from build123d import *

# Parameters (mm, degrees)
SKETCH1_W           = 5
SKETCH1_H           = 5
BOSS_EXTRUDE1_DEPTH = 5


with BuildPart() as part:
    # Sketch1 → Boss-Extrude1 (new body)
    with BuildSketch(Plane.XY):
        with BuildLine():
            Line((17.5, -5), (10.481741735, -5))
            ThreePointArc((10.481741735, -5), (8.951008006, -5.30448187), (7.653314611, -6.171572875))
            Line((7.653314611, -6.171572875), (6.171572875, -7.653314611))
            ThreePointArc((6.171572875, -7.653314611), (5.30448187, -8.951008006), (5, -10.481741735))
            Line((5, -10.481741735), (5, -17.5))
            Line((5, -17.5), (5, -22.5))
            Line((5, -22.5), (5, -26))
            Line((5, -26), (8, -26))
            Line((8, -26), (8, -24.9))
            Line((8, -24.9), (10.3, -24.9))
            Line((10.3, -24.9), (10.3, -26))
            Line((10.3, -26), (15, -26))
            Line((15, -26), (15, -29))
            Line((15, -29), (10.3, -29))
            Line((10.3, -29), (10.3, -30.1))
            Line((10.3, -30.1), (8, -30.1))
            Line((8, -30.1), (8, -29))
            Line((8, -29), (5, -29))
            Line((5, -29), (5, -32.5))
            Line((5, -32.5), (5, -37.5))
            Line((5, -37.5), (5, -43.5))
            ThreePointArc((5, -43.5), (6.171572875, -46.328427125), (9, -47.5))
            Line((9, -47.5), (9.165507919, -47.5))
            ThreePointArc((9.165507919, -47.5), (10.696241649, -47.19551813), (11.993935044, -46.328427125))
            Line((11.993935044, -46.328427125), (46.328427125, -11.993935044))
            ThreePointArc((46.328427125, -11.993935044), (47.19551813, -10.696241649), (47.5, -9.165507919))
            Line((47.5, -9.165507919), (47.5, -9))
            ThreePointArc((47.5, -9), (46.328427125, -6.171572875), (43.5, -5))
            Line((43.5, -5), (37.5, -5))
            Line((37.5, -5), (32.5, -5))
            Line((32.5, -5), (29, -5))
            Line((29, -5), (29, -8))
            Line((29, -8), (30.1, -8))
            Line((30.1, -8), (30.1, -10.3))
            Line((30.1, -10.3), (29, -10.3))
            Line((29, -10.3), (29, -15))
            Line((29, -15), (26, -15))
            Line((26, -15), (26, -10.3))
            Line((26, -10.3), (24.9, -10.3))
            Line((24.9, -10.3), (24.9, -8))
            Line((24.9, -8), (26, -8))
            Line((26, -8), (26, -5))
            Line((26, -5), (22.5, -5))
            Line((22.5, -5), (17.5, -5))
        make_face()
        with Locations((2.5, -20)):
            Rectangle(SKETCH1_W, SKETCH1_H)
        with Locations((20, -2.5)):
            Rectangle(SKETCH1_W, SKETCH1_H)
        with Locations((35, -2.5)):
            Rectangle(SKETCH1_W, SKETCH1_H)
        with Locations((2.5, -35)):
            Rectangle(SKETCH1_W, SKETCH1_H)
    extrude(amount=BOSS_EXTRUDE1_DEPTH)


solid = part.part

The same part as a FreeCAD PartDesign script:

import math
import FreeCAD as App
import Part
import Sketcher
from FreeCAD import Vector

doc = App.newDocument("Part")
body = doc.addObject("PartDesign::Body", "Body")

# Sketch on XY plane
sketch1 = doc.addObject("Sketcher::SketchObject", "Sketch")
body.addObject(sketch1)
sketch1.AttachmentSupport = (doc.XY_Plane, [""])
sketch1.MapMode = "FlatFace"
sketch1.addGeometry(Part.ArcOfCircle(Part.Circle(Vector(10.481742, -9, 0), Vector(0, 0, 1), 4), math.radians(90), math.radians(135)), False)
sketch1.addGeometry(Part.LineSegment(Vector(7.653315, -6.171573, 0), Vector(6.171573, -7.653315, 0)), False)
sketch1.addGeometry(Part.ArcOfCircle(Part.Circle(Vector(9, -10.481742, 0), Vector(0, 0, 1), 4), math.radians(135), math.radians(180)), False)
sketch1.addGeometry(Part.LineSegment(Vector(5, -10.481742, 0), Vector(5, -17.5, 0)), False)
sketch1.addGeometry(Part.LineSegment(Vector(5, -17.5, 0), Vector(0, -17.5, 0)), False)
sketch1.addGeometry(Part.LineSegment(Vector(0, -17.5, 0), Vector(0, -22.5, 0)), False)
sketch1.addGeometry(Part.LineSegment(Vector(0, -22.5, 0), Vector(5, -22.5, 0)), False)
sketch1.addGeometry(Part.LineSegment(Vector(5, -22.5, 0), Vector(5, -26, 0)), False)
sketch1.addGeometry(Part.LineSegment(Vector(5, -26, 0), Vector(8, -26, 0)), False)
sketch1.addGeometry(Part.LineSegment(Vector(8, -26, 0), Vector(8, -24.9, 0)), False)
sketch1.addGeometry(Part.LineSegment(Vector(8, -24.9, 0), Vector(10.3, -24.9, 0)), False)
sketch1.addGeometry(Part.LineSegment(Vector(10.3, -24.9, 0), Vector(10.3, -26, 0)), False)
sketch1.addGeometry(Part.LineSegment(Vector(10.3, -26, 0), Vector(15, -26, 0)), False)
sketch1.addGeometry(Part.LineSegment(Vector(15, -26, 0), Vector(15, -29, 0)), False)
sketch1.addGeometry(Part.LineSegment(Vector(15, -29, 0), Vector(10.3, -29, 0)), False)
sketch1.addGeometry(Part.LineSegment(Vector(10.3, -29, 0), Vector(10.3, -30.1, 0)), False)
sketch1.addGeometry(Part.LineSegment(Vector(10.3, -30.1, 0), Vector(8, -30.1, 0)), False)
sketch1.addGeometry(Part.LineSegment(Vector(8, -30.1, 0), Vector(8, -29, 0)), False)
sketch1.addGeometry(Part.LineSegment(Vector(8, -29, 0), Vector(5, -29, 0)), False)
sketch1.addGeometry(Part.LineSegment(Vector(5, -29, 0), Vector(5, -32.5, 0)), False)
sketch1.addGeometry(Part.LineSegment(Vector(5, -32.5, 0), Vector(0, -32.5, 0)), False)
sketch1.addGeometry(Part.LineSegment(Vector(0, -32.5, 0), Vector(0, -37.5, 0)), False)
sketch1.addGeometry(Part.LineSegment(Vector(0, -37.5, 0), Vector(5, -37.5, 0)), False)
sketch1.addGeometry(Part.LineSegment(Vector(5, -37.5, 0), Vector(5, -43.5, 0)), False)
sketch1.addGeometry(Part.ArcOfCircle(Part.Circle(Vector(9, -43.5, 0), Vector(0, 0, 1), 4), math.radians(180), math.radians(270)), False)
sketch1.addGeometry(Part.LineSegment(Vector(9, -47.5, 0), Vector(9.165508, -47.5, 0)), False)
sketch1.addGeometry(Part.ArcOfCircle(Part.Circle(Vector(9.165508, -43.5, 0), Vector(0, 0, 1), 4), math.radians(-90), math.radians(-45)), False)
sketch1.addGeometry(Part.LineSegment(Vector(11.993935, -46.328427, 0), Vector(46.328427, -11.993935, 0)), False)
sketch1.addGeometry(Part.ArcOfCircle(Part.Circle(Vector(43.5, -9.165508, 0), Vector(0, 0, 1), 4), math.radians(-45), math.radians(0)), False)
sketch1.addGeometry(Part.LineSegment(Vector(47.5, -9.165508, 0), Vector(47.5, -9, 0)), False)
sketch1.addGeometry(Part.ArcOfCircle(Part.Circle(Vector(43.5, -9, 0), Vector(0, 0, 1), 4), math.radians(0), math.radians(90)), False)
sketch1.addGeometry(Part.LineSegment(Vector(43.5, -5, 0), Vector(37.5, -5, 0)), False)
sketch1.addGeometry(Part.LineSegment(Vector(37.5, -5, 0), Vector(37.5, 0, 0)), False)
sketch1.addGeometry(Part.LineSegment(Vector(37.5, 0, 0), Vector(32.5, 0, 0)), False)
sketch1.addGeometry(Part.LineSegment(Vector(32.5, 0, 0), Vector(32.5, -5, 0)), False)
sketch1.addGeometry(Part.LineSegment(Vector(32.5, -5, 0), Vector(29, -5, 0)), False)
sketch1.addGeometry(Part.LineSegment(Vector(29, -5, 0), Vector(29, -8, 0)), False)
sketch1.addGeometry(Part.LineSegment(Vector(29, -8, 0), Vector(30.1, -8, 0)), False)
sketch1.addGeometry(Part.LineSegment(Vector(30.1, -8, 0), Vector(30.1, -10.3, 0)), False)
sketch1.addGeometry(Part.LineSegment(Vector(30.1, -10.3, 0), Vector(29, -10.3, 0)), False)
sketch1.addGeometry(Part.LineSegment(Vector(29, -10.3, 0), Vector(29, -15, 0)), False)
sketch1.addGeometry(Part.LineSegment(Vector(29, -15, 0), Vector(26, -15, 0)), False)
sketch1.addGeometry(Part.LineSegment(Vector(26, -15, 0), Vector(26, -10.3, 0)), False)
sketch1.addGeometry(Part.LineSegment(Vector(26, -10.3, 0), Vector(24.9, -10.3, 0)), False)
sketch1.addGeometry(Part.LineSegment(Vector(24.9, -10.3, 0), Vector(24.9, -8, 0)), False)
sketch1.addGeometry(Part.LineSegment(Vector(24.9, -8, 0), Vector(26, -8, 0)), False)
sketch1.addGeometry(Part.LineSegment(Vector(26, -8, 0), Vector(26, -5, 0)), False)
sketch1.addGeometry(Part.LineSegment(Vector(26, -5, 0), Vector(22.5, -5, 0)), False)
sketch1.addGeometry(Part.LineSegment(Vector(22.5, -5, 0), Vector(22.5, 0, 0)), False)
sketch1.addGeometry(Part.LineSegment(Vector(22.5, 0, 0), Vector(17.5, 0, 0)), False)
sketch1.addGeometry(Part.LineSegment(Vector(17.5, 0, 0), Vector(17.5, -5, 0)), False)
sketch1.addGeometry(Part.LineSegment(Vector(17.5, -5, 0), Vector(10.481742, -5, 0)), False)
sketch1.addConstraint(Sketcher.Constraint("Tangent", 0, 2, 1, 1))
sketch1.addConstraint(Sketcher.Constraint("Tangent", 1, 2, 2, 1))
sketch1.addConstraint(Sketcher.Constraint("Tangent", 2, 2, 3, 1))
sketch1.addConstraint(Sketcher.Constraint("Coincident", 3, 2, 4, 1))
sketch1.addConstraint(Sketcher.Constraint("Coincident", 4, 2, 5, 1))
sketch1.addConstraint(Sketcher.Constraint("Coincident", 5, 2, 6, 1))
sketch1.addConstraint(Sketcher.Constraint("Coincident", 6, 2, 7, 1))
sketch1.addConstraint(Sketcher.Constraint("Coincident", 7, 2, 8, 1))
sketch1.addConstraint(Sketcher.Constraint("Coincident", 8, 2, 9, 1))
sketch1.addConstraint(Sketcher.Constraint("Coincident", 9, 2, 10, 1))
sketch1.addConstraint(Sketcher.Constraint("Coincident", 10, 2, 11, 1))
sketch1.addConstraint(Sketcher.Constraint("Coincident", 11, 2, 12, 1))
sketch1.addConstraint(Sketcher.Constraint("Coincident", 12, 2, 13, 1))
sketch1.addConstraint(Sketcher.Constraint("Coincident", 13, 2, 14, 1))
sketch1.addConstraint(Sketcher.Constraint("Coincident", 14, 2, 15, 1))
sketch1.addConstraint(Sketcher.Constraint("Coincident", 15, 2, 16, 1))
sketch1.addConstraint(Sketcher.Constraint("Coincident", 16, 2, 17, 1))
sketch1.addConstraint(Sketcher.Constraint("Coincident", 17, 2, 18, 1))
sketch1.addConstraint(Sketcher.Constraint("Coincident", 18, 2, 19, 1))
sketch1.addConstraint(Sketcher.Constraint("Coincident", 19, 2, 20, 1))
sketch1.addConstraint(Sketcher.Constraint("Coincident", 20, 2, 21, 1))
sketch1.addConstraint(Sketcher.Constraint("Coincident", 21, 2, 22, 1))
sketch1.addConstraint(Sketcher.Constraint("Coincident", 22, 2, 23, 1))
sketch1.addConstraint(Sketcher.Constraint("Tangent", 23, 2, 24, 1))
sketch1.addConstraint(Sketcher.Constraint("Tangent", 24, 2, 25, 1))
sketch1.addConstraint(Sketcher.Constraint("Tangent", 25, 2, 26, 1))
sketch1.addConstraint(Sketcher.Constraint("Tangent", 26, 2, 27, 1))
sketch1.addConstraint(Sketcher.Constraint("Tangent", 27, 2, 28, 1))
sketch1.addConstraint(Sketcher.Constraint("Tangent", 28, 2, 29, 1))
sketch1.addConstraint(Sketcher.Constraint("Tangent", 29, 2, 30, 1))
sketch1.addConstraint(Sketcher.Constraint("Tangent", 30, 2, 31, 1))
sketch1.addConstraint(Sketcher.Constraint("Coincident", 31, 2, 32, 1))
sketch1.addConstraint(Sketcher.Constraint("Coincident", 32, 2, 33, 1))
sketch1.addConstraint(Sketcher.Constraint("Coincident", 33, 2, 34, 1))
sketch1.addConstraint(Sketcher.Constraint("Coincident", 34, 2, 35, 1))
sketch1.addConstraint(Sketcher.Constraint("Coincident", 35, 2, 36, 1))
sketch1.addConstraint(Sketcher.Constraint("Coincident", 36, 2, 37, 1))
sketch1.addConstraint(Sketcher.Constraint("Coincident", 37, 2, 38, 1))
sketch1.addConstraint(Sketcher.Constraint("Coincident", 38, 2, 39, 1))
sketch1.addConstraint(Sketcher.Constraint("Coincident", 39, 2, 40, 1))
sketch1.addConstraint(Sketcher.Constraint("Coincident", 40, 2, 41, 1))
sketch1.addConstraint(Sketcher.Constraint("Coincident", 41, 2, 42, 1))
sketch1.addConstraint(Sketcher.Constraint("Coincident", 42, 2, 43, 1))
sketch1.addConstraint(Sketcher.Constraint("Coincident", 43, 2, 44, 1))
sketch1.addConstraint(Sketcher.Constraint("Coincident", 44, 2, 45, 1))
sketch1.addConstraint(Sketcher.Constraint("Coincident", 45, 2, 46, 1))
sketch1.addConstraint(Sketcher.Constraint("Coincident", 46, 2, 47, 1))
sketch1.addConstraint(Sketcher.Constraint("Coincident", 47, 2, 48, 1))
sketch1.addConstraint(Sketcher.Constraint("Coincident", 48, 2, 49, 1))
sketch1.addConstraint(Sketcher.Constraint("Coincident", 49, 2, 50, 1))
sketch1.addConstraint(Sketcher.Constraint("Coincident", 50, 2, 51, 1))
sketch1.addConstraint(Sketcher.Constraint("Tangent", 51, 2, 0, 1))
sketch1.addConstraint(Sketcher.Constraint("Vertical", 3))
sketch1.addConstraint(Sketcher.Constraint("Horizontal", 4))
sketch1.addConstraint(Sketcher.Constraint("Vertical", 5))
sketch1.addConstraint(Sketcher.Constraint("Horizontal", 6))
sketch1.addConstraint(Sketcher.Constraint("Vertical", 7))
sketch1.addConstraint(Sketcher.Constraint("Horizontal", 8))
sketch1.addConstraint(Sketcher.Constraint("Vertical", 9))
sketch1.addConstraint(Sketcher.Constraint("Horizontal", 10))
sketch1.addConstraint(Sketcher.Constraint("Vertical", 11))
sketch1.addConstraint(Sketcher.Constraint("Horizontal", 12))
sketch1.addConstraint(Sketcher.Constraint("Vertical", 13))
sketch1.addConstraint(Sketcher.Constraint("Horizontal", 14))
sketch1.addConstraint(Sketcher.Constraint("Vertical", 15))
sketch1.addConstraint(Sketcher.Constraint("Horizontal", 16))
sketch1.addConstraint(Sketcher.Constraint("Vertical", 17))
sketch1.addConstraint(Sketcher.Constraint("Horizontal", 18))
sketch1.addConstraint(Sketcher.Constraint("Vertical", 19))
sketch1.addConstraint(Sketcher.Constraint("Horizontal", 20))
sketch1.addConstraint(Sketcher.Constraint("Vertical", 21))
sketch1.addConstraint(Sketcher.Constraint("Horizontal", 22))
sketch1.addConstraint(Sketcher.Constraint("Vertical", 23))
sketch1.addConstraint(Sketcher.Constraint("Horizontal", 25))
sketch1.addConstraint(Sketcher.Constraint("Vertical", 29))
sketch1.addConstraint(Sketcher.Constraint("Horizontal", 31))
sketch1.addConstraint(Sketcher.Constraint("Vertical", 32))
sketch1.addConstraint(Sketcher.Constraint("Horizontal", 33))
sketch1.addConstraint(Sketcher.Constraint("Vertical", 34))
sketch1.addConstraint(Sketcher.Constraint("Horizontal", 35))
sketch1.addConstraint(Sketcher.Constraint("Vertical", 36))
sketch1.addConstraint(Sketcher.Constraint("Horizontal", 37))
sketch1.addConstraint(Sketcher.Constraint("Vertical", 38))
sketch1.addConstraint(Sketcher.Constraint("Horizontal", 39))
sketch1.addConstraint(Sketcher.Constraint("Vertical", 40))
sketch1.addConstraint(Sketcher.Constraint("Horizontal", 41))
sketch1.addConstraint(Sketcher.Constraint("Vertical", 42))
sketch1.addConstraint(Sketcher.Constraint("Horizontal", 43))
sketch1.addConstraint(Sketcher.Constraint("Vertical", 44))
sketch1.addConstraint(Sketcher.Constraint("Horizontal", 45))
sketch1.addConstraint(Sketcher.Constraint("Vertical", 46))
sketch1.addConstraint(Sketcher.Constraint("Horizontal", 47))
sketch1.addConstraint(Sketcher.Constraint("Vertical", 48))
sketch1.addConstraint(Sketcher.Constraint("Horizontal", 49))
sketch1.addConstraint(Sketcher.Constraint("Vertical", 50))
sketch1.addConstraint(Sketcher.Constraint("Horizontal", 51))
sketch1.addConstraint(Sketcher.Constraint("Equal", 0, 2))
sketch1.addConstraint(Sketcher.Constraint("Equal", 2, 24))
sketch1.addConstraint(Sketcher.Constraint("Equal", 24, 26))
sketch1.addConstraint(Sketcher.Constraint("Equal", 26, 28))
sketch1.addConstraint(Sketcher.Constraint("Equal", 28, 30))
sketch1.addConstraint(Sketcher.Constraint("PointOnObject", 4, 2, -2))
sketch1.addConstraint(Sketcher.Constraint("PointOnObject", 20, 2, -2))
sketch1.addConstraint(Sketcher.Constraint("PointOnObject", 32, 2, -1))
sketch1.addConstraint(Sketcher.Constraint("PointOnObject", 48, 2, -1))
sketch1.addConstraint(Sketcher.Constraint("Parallel", 1, 27))
sketch1.addConstraint(Sketcher.Constraint("Horizontal", 0, 3, 30, 3))
sketch1.addConstraint(Sketcher.Constraint("Horizontal", 8, 2, 11, 2))
sketch1.addConstraint(Sketcher.Constraint("Horizontal", 14, 2, 17, 2))
sketch1.addConstraint(Sketcher.Constraint("Horizontal", 31, 2, 34, 2))
sketch1.addConstraint(Sketcher.Constraint("Horizontal", 39, 2, 42, 2))
sketch1.addConstraint(Sketcher.Constraint("Horizontal", 37, 2, 44, 2))
sketch1.addConstraint(Sketcher.Constraint("Horizontal", 35, 2, 46, 2))
sketch1.addConstraint(Sketcher.Constraint("Vertical", 2, 3, 24, 3))
sketch1.addConstraint(Sketcher.Constraint("Vertical", 3, 2, 6, 2))
sketch1.addConstraint(Sketcher.Constraint("Vertical", 11, 2, 14, 2))
sketch1.addConstraint(Sketcher.Constraint("Vertical", 9, 2, 16, 2))
sketch1.addConstraint(Sketcher.Constraint("Vertical", 7, 2, 18, 2))
sketch1.addConstraint(Sketcher.Constraint("Vertical", 36, 2, 39, 2))
sketch1.addConstraint(Sketcher.Constraint("Vertical", 42, 2, 45, 2))
sketch1.addConstraint(Sketcher.Constraint("Equal", 22, 33))
sketch1.addConstraint(Sketcher.Constraint("Equal", 18, 41))
sketch1.addConstraint(Sketcher.Constraint("Equal", 39, 43))
sketch1.addConstraint(Sketcher.Constraint("Equal", 35, 47))
sketch1.addConstraint(Sketcher.Constraint("Equal", 33, 49))
sketch1.addConstraint(Sketcher.Constraint("Equal", 51, 3))
sketch1.addConstraint(Sketcher.Constraint("Equal", 49, 5))
sketch1.addConstraint(Sketcher.Constraint("Equal", 47, 7))
sketch1.addConstraint(Sketcher.Constraint("Equal", 45, 9))
sketch1.addConstraint(Sketcher.Constraint("Equal", 41, 13))
sketch1.addConstraint(Sketcher.Constraint("Equal", 11, 15))
sketch1.addConstraint(Sketcher.Constraint("Equal", 7, 19))
sketch1.addConstraint(Sketcher.Constraint("Equal", 5, 21))
sketch1.addConstraint(Sketcher.Constraint("Equal", 31, 23))
sketch1.addConstraint(Sketcher.Constraint("Equal", 25, 29))
sketch1.addConstraint(Sketcher.Constraint("Equal", 21, 32))
sketch1.addConstraint(Sketcher.Constraint("Equal", 13, 36))
sketch1.addConstraint(Sketcher.Constraint("Equal", 16, 38))
sketch1.addConstraint(Sketcher.Constraint("Equal", 14, 40))
sketch1.addConstraint(Sketcher.Constraint("Radius", 0, 4.0))
sketch1.addConstraint(Sketcher.Constraint("DistanceX", 4, 2, 4, 1, 5.0))
sketch1.addConstraint(Sketcher.Constraint("DistanceX", 8, 1, 8, 2, 3.0))
sketch1.addConstraint(Sketcher.Constraint("DistanceX", 31, 2, 31, 1, 6.0))
sketch1.addConstraint(Sketcher.Constraint("DistanceX", 10, 1, 10, 2, 2.3))
sketch1.addConstraint(Sketcher.Constraint("DistanceX", 12, 1, 12, 2, 4.7))
sketch1.addConstraint(Sketcher.Constraint("DistanceX", 35, 2, 35, 1, 3.5))
sketch1.addConstraint(Sketcher.Constraint("DistanceX", 37, 1, 37, 2, 1.1))
sketch1.addConstraint(Sketcher.Constraint("DistanceY", 7, 2, -1, 1, 26.0))
sketch1.addConstraint(Sketcher.Constraint("Distance", 1, 2.095499))
sketch1.addConstraint(Sketcher.Constraint("DistanceX", 25, 1, 25, 2, 0.165508))
pad1 = doc.addObject("PartDesign::Pad", "Pad")
body.addObject(pad1)
pad1.Profile = sketch1
pad1.Length = 5

doc.recompute()
